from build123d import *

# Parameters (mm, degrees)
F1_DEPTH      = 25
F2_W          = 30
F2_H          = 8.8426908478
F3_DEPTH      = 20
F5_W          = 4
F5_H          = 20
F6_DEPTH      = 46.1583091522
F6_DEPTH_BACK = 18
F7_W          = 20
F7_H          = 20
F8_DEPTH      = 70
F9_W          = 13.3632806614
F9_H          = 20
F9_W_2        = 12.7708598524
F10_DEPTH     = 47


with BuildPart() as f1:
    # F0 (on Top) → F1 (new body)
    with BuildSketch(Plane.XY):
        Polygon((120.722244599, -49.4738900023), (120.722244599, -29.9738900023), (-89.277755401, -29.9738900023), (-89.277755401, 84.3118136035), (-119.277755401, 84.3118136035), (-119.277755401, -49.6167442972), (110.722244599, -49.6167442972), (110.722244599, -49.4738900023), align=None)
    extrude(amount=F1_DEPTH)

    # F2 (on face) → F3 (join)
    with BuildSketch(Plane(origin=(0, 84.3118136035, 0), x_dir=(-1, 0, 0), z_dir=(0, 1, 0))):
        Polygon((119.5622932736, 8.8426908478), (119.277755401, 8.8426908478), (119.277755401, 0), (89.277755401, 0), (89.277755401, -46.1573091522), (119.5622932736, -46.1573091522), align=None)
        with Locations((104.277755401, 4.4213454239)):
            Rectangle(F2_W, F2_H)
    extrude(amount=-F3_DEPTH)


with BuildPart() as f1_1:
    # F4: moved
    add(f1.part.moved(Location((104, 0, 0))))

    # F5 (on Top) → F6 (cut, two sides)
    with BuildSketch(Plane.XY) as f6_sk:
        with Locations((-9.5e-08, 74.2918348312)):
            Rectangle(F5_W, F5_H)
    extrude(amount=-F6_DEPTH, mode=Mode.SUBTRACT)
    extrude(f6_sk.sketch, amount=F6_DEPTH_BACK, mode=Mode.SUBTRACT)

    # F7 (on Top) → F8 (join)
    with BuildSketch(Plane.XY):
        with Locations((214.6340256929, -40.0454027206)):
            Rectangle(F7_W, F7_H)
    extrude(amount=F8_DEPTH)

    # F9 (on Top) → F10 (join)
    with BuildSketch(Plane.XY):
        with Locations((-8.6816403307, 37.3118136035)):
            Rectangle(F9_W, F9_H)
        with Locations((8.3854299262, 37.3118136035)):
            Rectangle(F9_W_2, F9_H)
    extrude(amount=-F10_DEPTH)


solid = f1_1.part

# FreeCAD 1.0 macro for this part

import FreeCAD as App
import Part
import Sketcher

V = App.Vector

doc = App.newDocument("Part")
body = doc.addObject("PartDesign::Body", "Body")

sketch1 = body.newObject("Sketcher::SketchObject", "Sketch")
sketch1.AttachmentSupport = (doc.getObject("XY_Plane"), [""])
sketch1.MapMode = "FlatFace"
sketch1.addGeometry([
    Part.LineSegment(V(120.722245, -49.47389, 0), V(120.722245, -29.97389, 0)),
    Part.LineSegment(V(120.722245, -29.97389, 0), V(-89.277755, -29.97389, 0)),
    Part.LineSegment(V(-89.277755, -29.97389, 0), V(-89.277755, 84.311814, 0)),
    Part.LineSegment(V(-89.277755, 84.311814, 0), V(-119.277755, 84.311814, 0)),
    Part.LineSegment(V(-119.277755, 84.311814, 0), V(-119.277755, -49.616744, 0)),
    Part.LineSegment(V(-119.277755, -49.616744, 0), V(110.722245, -49.616744, 0)),
    Part.LineSegment(V(110.722245, -49.616744, 0), V(110.722245, -49.47389, 0)),
    Part.LineSegment(V(110.722245, -49.47389, 0), V(120.722245, -49.47389, 0)),
], False)
sketch1.addConstraint([
    Sketcher.Constraint("Coincident", 0, 2, 1, 1),
    Sketcher.Constraint("Coincident", 1, 2, 2, 1),
    Sketcher.Constraint("Coincident", 2, 2, 3, 1),
    Sketcher.Constraint("Coincident", 3, 2, 4, 1),
    Sketcher.Constraint("Coincident", 4, 2, 5, 1),
    Sketcher.Constraint("Coincident", 5, 2, 6, 1),
    Sketcher.Constraint("Coincident", 6, 2, 7, 1),
    Sketcher.Constraint("Coincident", 7, 2, 0, 1),
    Sketcher.Constraint("Vertical", 0),
    Sketcher.Constraint("Horizontal", 1),
    Sketcher.Constraint("Vertical", 2),
    Sketcher.Constraint("Horizontal", 3),
    Sketcher.Constraint("Vertical", 4),
    Sketcher.Constraint("Horizontal", 5),
    Sketcher.Constraint("Vertical", 6),
    Sketcher.Constraint("Horizontal", 7),
    Sketcher.Constraint("DistanceX", 1, 2, 1, 1, 210.0),
    Sketcher.Constraint("DistanceX", 3, 2, 3, 1, 30.0),
    Sketcher.Constraint("DistanceX", 5, 1, 5, 2, 230.0),
    Sketcher.Constraint("DistanceY", 0, 1, 0, 2, 19.5),
    Sketcher.Constraint("DistanceY", 2, 1, 2, 2, 114.285704),
    Sketcher.Constraint("DistanceY", 4, 2, 4, 1, 133.928558),
    Sketcher.Constraint("DistanceY", 0, 2, -1, 1, 29.97389),
    Sketcher.Constraint("DistanceX", -1, 1, 0, 2, 120.722245),
])
pad1 = body.newObject("PartDesign::Pad", "Pad")
pad1.Profile = sketch1
pad1.Length = 25

sketch2 = body.newObject("Sketcher::SketchObject", "Sketch001")
sketch2.AttachmentSupport = (doc.getObject("XZ_Plane"), [""])
sketch2.MapMode = "FlatFace"
sketch2.AttachmentOffset = App.Placement(V(0, 0, -84.311814), App.Rotation())
sketch2.addGeometry([
    Part.LineSegment(V(-119.562293, 8.842691, 0), V(-89.277755, 8.842691, 0)),
    Part.LineSegment(V(-89.277755, 8.842691, 0), V(-89.277755, -46.157309, 0)),
    Part.LineSegment(V(-89.277755, -46.157309, 0), V(-119.562293, -46.157309, 0)),
    Part.LineSegment(V(-119.562293, -46.157309, 0), V(-119.562293, 8.842691, 0)),
], False)
sketch2.addConstraint([
    Sketcher.Constraint("Coincident", 0, 2, 1, 1),
    Sketcher.Constraint("Coincident", 1, 2, 2, 1),
    Sketcher.Constraint("Coincident", 2, 2, 3, 1),
    Sketcher.Constraint("Coincident", 3, 2, 0, 1),
    Sketcher.Constraint("Horizontal", 0),
    Sketcher.Constraint("Vertical", 1),
    Sketcher.Constraint("Horizontal", 2),
    Sketcher.Constraint("Vertical", 3),
    Sketcher.Constraint("DistanceY", 1, 2, 1, 1, 55.0),
    Sketcher.Constraint("DistanceX", 0, 1, 0, 2, 30.284538),
    Sketcher.Constraint("DistanceY", -1, 1, 0, 2, 8.842691),
    Sketcher.Constraint("DistanceX", 0, 2, -1, 1, 89.277755),
])
pad2 = body.newObject("PartDesign::Pad", "Pad001")
pad2.Profile = sketch2
pad2.Length = 20
body2 = doc.addObject("PartDesign::Body", "Body001")
doc.recompute()

body.Placement = App.Placement(V(104, 0, 0), App.Rotation(V(0, 0, 1), 0))
boolean = body2.newObject("PartDesign::Boolean", "Boolean")
boolean.Type = "Fuse"
boolean.addObjects([body])

sketch3 = body2.newObject("Sketcher::SketchObject", "Sketch002")
sketch3.AttachmentSupport = (doc.getObject("XY_Plane001"), [""])
sketch3.MapMode = "FlatFace"
sketch3.addGeometry([
    Part.LineSegment(V(-2, 84.291835, 0), V(-2, 64.291835, 0)),
    Part.LineSegment(V(-2, 64.291835, 0), V(2, 64.291835, 0)),
    Part.LineSegment(V(2, 64.291835, 0), V(2, 84.291835, 0)),
    Part.LineSegment(V(2, 84.291835, 0), V(-2, 84.291835, 0)),
], False)
sketch3.addConstraint([
    Sketcher.Constraint("Coincident", 0, 2, 1, 1),
    Sketcher.Constraint("Coincident", 1, 2, 2, 1),
    Sketcher.Constraint("Coincident", 2, 2, 3, 1),
    Sketcher.Constraint("Coincident", 3, 2, 0, 1),
    Sketcher.Constraint("Vertical", 0),
    Sketcher.Constraint("Horizontal", 1),
    Sketcher.Constraint("Vertical", 2),
    Sketcher.Constraint("Horizontal", 3),
    Sketcher.Constraint("DistanceX", 1, 1, 1, 2, 4.0),
    Sketcher.Constraint("DistanceY", 0, 2, 0, 1, 20.0),
    Sketcher.Constraint("DistanceX", 0, 2, -1, 1, 2.0),
    Sketcher.Constraint("DistanceY", -1, 1, 0, 2, 64.291835),
])
pocket1 = body2.newObject("PartDesign::Pocket", "Pocket")
pocket1.Profile = sketch3
pocket1.Type = "TwoLengths"
pocket1.Length = 46.158309
pocket1.Length2 = 18

sketch4 = body2.newObject("Sketcher::SketchObject", "Sketch003")
sketch4.AttachmentSupport = (doc.getObject("XY_Plane001"), [""])
sketch4.MapMode = "FlatFace"
sketch4.addGeometry([
    Part.LineSegment(V(204.634026, -30.045403, 0), V(204.634026, -50.045403, 0)),
    Part.LineSegment(V(204.634026, -50.045403, 0), V(224.634026, -50.045403, 0)),
    Part.LineSegment(V(224.634026, -50.045403, 0), V(224.634026, -30.045403, 0)),
    Part.LineSegment(V(224.634026, -30.045403, 0), V(204.634026, -30.045403, 0)),
], False)
sketch4.addConstraint([
    Sketcher.Constraint("Coincident", 0, 2, 1, 1),
    Sketcher.Constraint("Coincident", 1, 2, 2, 1),
    Sketcher.Constraint("Coincident", 2, 2, 3, 1),
    Sketcher.Constraint("Coincident", 3, 2, 0, 1),
    Sketcher.Constraint("Vertical", 0),
    Sketcher.Constraint("Horizontal", 1),
    Sketcher.Constraint("Vertical", 2),
    Sketcher.Constraint("Horizontal", 3),
    Sketcher.Constraint("Equal", 3, 0),
    Sketcher.Constraint("DistanceX", 1, 1, 1, 2, 20.0),
    Sketcher.Constraint("DistanceX", -1, 1, 0, 2, 204.634026),
    Sketcher.Constraint("DistanceY", 0, 2, -1, 1, 50.045403),
])
pad3 = body2.newObject("PartDesign::Pad", "Pad002")
pad3.Profile = sketch4
pad3.Length = 70

sketch5 = body2.newObject("Sketcher::SketchObject", "Sketch004")
sketch5.AttachmentSupport = (doc.getObject("XY_Plane001"), [""])
sketch5.MapMode = "FlatFace"
sketch5.addGeometry([
    Part.LineSegment(V(-15.363281, 47.311814, 0), V(-15.363281, 27.311814, 0)),
    Part.LineSegment(V(-15.363281, 27.311814, 0), V(-2, 27.311814, 0)),
    Part.LineSegment(V(-2, 27.311814, 0), V(-2, 47.311814, 0)),
    Part.LineSegment(V(-2, 47.311814, 0), V(-15.363281, 47.311814, 0)),
    Part.LineSegment(V(2, 47.311814, 0), V(2, 27.311814, 0)),
    Part.LineSegment(V(2, 27.311814, 0), V(14.77086, 27.311814, 0)),
    Part.LineSegment(V(14.77086, 27.311814, 0), V(14.77086, 47.311814, 0)),
    Part.LineSegment(V(14.77086, 47.311814, 0), V(2, 47.311814, 0)),
], False)
sketch5.addConstraint([
    Sketcher.Constraint("Coincident", 0, 2, 1, 1),
    Sketcher.Constraint("Coincident", 1, 2, 2, 1),
    Sketcher.Constraint("Coincident", 2, 2, 3, 1),
    Sketcher.Constraint("Coincident", 3, 2, 0, 1),
    Sketcher.Constraint("Coincident", 4, 2, 5, 1),
    Sketcher.Constraint("Coincident", 5, 2, 6, 1),
    Sketcher.Constraint("Coincident", 6, 2, 7, 1),
    Sketcher.Constraint("Coincident", 7, 2, 4, 1),
    Sketcher.Constraint("Vertical", 0),
    Sketcher.Constraint("Horizontal", 1),
    Sketcher.Constraint("Vertical", 2),
    Sketcher.Constraint("Horizontal", 3),
    Sketcher.Constraint("Vertical", 4),
    Sketcher.Constraint("Horizontal", 5),
    Sketcher.Constraint("Vertical", 6),
    Sketcher.Constraint("Horizontal", 7),
    Sketcher.Constraint("Symmetric", 1, 2, 4, 2, -2),
    Sketcher.Constraint("Horizontal", 3, 2, 6, 2),
    Sketcher.Constraint("DistanceY", 0, 2, 0, 1, 20.0),
    Sketcher.Constraint("DistanceX", 1, 2, -1, 1, 2.0),
    Sketcher.Constraint("DistanceX", 1, 1, 1, 2, 13.363281),
    Sketcher.Constraint("DistanceX", 5, 1, 5, 2, 12.77086),
    Sketcher.Constraint("DistanceY", -1, 1, 0, 2, 27.311814),
])
pad4 = body2.newObject("PartDesign::Pad", "Pad003")
pad4.Profile = sketch5
pad4.Length = 47
pad4.Reversed = True

doc.recompute()
